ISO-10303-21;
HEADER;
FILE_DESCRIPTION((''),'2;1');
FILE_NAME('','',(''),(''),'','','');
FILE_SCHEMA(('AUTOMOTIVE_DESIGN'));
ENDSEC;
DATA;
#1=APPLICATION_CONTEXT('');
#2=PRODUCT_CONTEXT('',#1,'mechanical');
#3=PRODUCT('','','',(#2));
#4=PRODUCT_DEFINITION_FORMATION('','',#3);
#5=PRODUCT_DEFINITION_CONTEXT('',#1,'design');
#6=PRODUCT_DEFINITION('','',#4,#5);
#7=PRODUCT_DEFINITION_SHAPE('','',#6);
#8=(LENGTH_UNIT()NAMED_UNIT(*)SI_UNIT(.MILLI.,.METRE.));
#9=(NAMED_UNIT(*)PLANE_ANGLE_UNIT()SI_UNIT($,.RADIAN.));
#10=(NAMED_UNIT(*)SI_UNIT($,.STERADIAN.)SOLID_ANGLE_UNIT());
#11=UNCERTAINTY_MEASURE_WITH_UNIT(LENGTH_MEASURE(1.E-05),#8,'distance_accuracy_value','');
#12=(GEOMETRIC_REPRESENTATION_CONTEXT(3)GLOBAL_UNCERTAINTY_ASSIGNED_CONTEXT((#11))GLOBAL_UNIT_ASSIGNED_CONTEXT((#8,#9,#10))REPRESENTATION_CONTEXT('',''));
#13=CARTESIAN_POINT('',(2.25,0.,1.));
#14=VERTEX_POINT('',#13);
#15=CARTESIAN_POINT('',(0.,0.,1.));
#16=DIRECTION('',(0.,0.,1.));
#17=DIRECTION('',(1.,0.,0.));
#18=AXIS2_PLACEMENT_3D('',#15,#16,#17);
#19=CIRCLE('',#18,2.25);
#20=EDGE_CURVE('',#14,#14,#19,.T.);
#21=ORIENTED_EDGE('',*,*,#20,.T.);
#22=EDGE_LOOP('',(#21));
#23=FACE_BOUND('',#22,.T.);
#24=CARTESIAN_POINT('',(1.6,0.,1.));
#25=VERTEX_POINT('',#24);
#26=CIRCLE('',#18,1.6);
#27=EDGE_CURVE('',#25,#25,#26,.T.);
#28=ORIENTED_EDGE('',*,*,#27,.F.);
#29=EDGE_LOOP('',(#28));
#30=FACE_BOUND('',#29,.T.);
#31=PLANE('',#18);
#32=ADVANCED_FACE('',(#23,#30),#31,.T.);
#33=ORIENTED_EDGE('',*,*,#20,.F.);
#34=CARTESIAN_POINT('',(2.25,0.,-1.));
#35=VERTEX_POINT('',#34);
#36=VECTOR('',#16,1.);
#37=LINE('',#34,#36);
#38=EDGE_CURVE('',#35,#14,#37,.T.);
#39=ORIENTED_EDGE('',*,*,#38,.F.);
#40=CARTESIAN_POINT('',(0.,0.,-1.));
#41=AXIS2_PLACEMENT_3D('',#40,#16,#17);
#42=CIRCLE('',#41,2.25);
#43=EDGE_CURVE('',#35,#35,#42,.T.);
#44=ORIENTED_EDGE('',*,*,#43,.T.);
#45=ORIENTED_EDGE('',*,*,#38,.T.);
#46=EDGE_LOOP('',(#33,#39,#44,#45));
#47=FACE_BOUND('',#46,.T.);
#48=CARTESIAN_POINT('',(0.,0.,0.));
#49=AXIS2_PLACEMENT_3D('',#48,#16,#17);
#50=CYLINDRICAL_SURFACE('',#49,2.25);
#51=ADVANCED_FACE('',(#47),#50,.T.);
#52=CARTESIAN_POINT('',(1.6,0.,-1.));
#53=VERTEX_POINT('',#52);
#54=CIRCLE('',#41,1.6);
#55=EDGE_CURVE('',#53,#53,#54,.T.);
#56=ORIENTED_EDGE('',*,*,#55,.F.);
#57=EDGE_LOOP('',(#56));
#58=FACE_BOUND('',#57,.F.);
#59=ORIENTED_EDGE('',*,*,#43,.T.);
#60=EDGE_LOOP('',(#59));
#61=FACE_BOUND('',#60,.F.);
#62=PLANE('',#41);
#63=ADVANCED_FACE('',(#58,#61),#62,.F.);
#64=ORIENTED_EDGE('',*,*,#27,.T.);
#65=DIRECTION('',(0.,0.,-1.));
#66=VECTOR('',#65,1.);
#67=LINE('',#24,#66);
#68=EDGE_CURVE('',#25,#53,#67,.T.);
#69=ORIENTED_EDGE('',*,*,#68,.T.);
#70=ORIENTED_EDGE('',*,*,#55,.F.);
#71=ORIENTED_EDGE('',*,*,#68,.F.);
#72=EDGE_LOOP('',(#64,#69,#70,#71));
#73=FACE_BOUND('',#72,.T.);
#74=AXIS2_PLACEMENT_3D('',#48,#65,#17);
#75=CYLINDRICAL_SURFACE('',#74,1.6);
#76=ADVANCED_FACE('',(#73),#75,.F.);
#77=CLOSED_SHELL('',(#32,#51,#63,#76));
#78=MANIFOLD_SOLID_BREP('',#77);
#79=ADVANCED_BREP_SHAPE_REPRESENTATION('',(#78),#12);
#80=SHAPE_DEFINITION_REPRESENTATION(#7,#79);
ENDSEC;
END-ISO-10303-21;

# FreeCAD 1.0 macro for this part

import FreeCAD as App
import Part
import Sketcher

V = App.Vector
Q = App.Units.Quantity

doc = App.newDocument("Part")
body = doc.addObject("PartDesign::Body", "Body")

# Sketch on XY plane
sketch1 = doc.addObject("Sketcher::SketchObject", "Sketch")
body.addObject(sketch1)
sketch1.AttachmentSupport = (doc.XY_Plane, [""])
sketch1.MapMode = "FlatFace"
sketch1.addGeometry(Part.Circle(V(0, 0, 0), V(0, 0, 1), 2.25), False)
sketch1.addGeometry(Part.Circle(V(0, 0, 0), V(0, 0, 1), 1.6), False)
sketch1.addConstraint(Sketcher.Constraint("Coincident", 0, 3, -1, 1))
sketch1.addConstraint(Sketcher.Constraint("Coincident", 1, 3, -1, 1))
sketch1.addConstraint(Sketcher.Constraint("Diameter", 0, Q("4.5 mm")))
sketch1.addConstraint(Sketcher.Constraint("Diameter", 1, Q("3.2 mm")))
pad1 = doc.addObject("PartDesign::Pad", "Pad")
body.addObject(pad1)
pad1.Profile = sketch1
pad1.Length = 2
pad1.Midplane = True

doc.recompute()
